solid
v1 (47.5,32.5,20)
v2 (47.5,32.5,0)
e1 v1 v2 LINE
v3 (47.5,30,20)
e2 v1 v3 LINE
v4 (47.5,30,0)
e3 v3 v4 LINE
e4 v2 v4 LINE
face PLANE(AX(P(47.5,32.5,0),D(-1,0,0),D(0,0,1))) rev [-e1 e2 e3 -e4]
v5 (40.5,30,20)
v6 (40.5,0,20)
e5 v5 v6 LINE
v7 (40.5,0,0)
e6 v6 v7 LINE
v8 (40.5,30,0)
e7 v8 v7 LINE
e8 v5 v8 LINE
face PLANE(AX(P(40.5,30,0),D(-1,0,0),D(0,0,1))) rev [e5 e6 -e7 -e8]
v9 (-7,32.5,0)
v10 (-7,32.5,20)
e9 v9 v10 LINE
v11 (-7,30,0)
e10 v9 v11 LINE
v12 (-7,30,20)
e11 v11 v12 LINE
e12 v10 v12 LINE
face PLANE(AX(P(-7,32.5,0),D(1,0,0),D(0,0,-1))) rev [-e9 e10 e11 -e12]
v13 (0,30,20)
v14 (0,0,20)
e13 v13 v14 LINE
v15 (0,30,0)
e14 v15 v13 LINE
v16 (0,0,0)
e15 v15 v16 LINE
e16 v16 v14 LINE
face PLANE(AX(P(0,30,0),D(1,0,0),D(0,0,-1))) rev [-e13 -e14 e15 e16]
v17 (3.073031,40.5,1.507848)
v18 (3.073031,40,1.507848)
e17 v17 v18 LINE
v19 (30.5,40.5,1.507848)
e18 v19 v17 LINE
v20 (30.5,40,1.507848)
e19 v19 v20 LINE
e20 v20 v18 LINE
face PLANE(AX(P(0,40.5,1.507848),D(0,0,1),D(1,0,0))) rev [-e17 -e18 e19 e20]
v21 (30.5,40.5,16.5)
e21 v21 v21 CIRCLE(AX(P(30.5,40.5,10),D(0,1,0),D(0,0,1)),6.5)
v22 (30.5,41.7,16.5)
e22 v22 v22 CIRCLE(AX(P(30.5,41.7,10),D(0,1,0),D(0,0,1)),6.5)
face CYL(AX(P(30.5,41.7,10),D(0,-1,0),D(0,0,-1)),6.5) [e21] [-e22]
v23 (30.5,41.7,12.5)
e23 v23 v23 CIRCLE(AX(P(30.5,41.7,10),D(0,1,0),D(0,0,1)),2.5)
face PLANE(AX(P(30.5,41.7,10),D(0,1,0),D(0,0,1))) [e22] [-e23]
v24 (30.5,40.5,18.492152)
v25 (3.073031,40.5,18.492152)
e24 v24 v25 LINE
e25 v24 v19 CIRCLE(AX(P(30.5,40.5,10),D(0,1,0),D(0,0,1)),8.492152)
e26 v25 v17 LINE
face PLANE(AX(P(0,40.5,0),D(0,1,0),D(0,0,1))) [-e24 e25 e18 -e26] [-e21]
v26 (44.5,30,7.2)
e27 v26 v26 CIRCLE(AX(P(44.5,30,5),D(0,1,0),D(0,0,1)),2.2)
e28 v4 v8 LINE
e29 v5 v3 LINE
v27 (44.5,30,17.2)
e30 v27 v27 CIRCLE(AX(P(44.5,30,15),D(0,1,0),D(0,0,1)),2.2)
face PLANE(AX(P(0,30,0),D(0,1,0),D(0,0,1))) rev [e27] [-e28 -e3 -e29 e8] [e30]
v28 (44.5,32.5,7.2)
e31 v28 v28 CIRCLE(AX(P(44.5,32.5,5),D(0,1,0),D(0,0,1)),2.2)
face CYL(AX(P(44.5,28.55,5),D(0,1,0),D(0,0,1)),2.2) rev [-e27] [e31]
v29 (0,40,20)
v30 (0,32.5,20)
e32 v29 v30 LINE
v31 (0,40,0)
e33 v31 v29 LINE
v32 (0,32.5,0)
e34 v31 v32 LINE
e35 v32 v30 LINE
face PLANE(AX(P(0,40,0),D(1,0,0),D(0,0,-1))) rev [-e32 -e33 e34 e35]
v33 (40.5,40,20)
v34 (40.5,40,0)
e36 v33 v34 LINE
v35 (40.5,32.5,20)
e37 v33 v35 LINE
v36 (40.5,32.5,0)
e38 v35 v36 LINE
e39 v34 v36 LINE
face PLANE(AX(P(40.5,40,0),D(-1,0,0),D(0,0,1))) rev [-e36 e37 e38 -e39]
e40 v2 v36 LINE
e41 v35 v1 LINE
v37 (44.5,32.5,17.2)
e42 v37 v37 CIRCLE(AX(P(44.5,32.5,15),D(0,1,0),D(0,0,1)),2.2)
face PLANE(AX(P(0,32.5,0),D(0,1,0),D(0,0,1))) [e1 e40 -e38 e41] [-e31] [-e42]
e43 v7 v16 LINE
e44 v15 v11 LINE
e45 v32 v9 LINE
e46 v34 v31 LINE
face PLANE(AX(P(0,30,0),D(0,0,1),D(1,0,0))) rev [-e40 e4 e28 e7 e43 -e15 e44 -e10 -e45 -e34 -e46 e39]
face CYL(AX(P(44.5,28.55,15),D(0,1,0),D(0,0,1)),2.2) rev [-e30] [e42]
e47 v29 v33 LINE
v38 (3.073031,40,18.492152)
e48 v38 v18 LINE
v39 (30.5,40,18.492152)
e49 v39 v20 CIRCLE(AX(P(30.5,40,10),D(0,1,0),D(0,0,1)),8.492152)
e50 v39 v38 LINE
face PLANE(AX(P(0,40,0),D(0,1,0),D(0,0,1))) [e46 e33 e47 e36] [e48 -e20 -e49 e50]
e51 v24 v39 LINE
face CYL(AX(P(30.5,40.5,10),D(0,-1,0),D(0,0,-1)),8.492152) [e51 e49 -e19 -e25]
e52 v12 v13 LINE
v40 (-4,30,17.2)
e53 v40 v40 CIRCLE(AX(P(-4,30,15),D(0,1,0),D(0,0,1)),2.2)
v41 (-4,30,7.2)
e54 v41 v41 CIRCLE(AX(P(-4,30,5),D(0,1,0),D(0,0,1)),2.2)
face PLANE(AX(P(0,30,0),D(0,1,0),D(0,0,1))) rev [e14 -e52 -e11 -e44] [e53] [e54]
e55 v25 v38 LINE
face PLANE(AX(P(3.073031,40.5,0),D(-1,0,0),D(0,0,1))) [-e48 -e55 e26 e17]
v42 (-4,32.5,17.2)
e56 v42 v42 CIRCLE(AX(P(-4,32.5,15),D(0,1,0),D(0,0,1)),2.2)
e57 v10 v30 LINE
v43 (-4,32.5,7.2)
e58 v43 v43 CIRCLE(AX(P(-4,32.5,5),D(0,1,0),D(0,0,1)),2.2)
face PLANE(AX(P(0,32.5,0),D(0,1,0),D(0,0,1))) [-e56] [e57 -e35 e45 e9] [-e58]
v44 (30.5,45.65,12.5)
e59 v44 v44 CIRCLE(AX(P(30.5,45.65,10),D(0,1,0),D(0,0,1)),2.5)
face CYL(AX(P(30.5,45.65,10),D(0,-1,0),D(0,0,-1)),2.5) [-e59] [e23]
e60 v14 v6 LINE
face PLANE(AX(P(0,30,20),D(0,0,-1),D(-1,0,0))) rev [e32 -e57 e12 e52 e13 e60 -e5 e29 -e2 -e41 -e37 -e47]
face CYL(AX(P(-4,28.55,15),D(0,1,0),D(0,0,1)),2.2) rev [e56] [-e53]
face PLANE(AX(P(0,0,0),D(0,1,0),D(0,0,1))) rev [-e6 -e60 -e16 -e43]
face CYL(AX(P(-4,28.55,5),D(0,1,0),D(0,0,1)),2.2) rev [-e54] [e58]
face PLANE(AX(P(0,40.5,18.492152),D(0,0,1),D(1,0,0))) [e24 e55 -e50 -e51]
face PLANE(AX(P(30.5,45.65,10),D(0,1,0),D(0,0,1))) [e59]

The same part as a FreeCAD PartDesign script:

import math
import FreeCAD as App
import Part
import Sketcher

doc = App.newDocument("Part")
body = doc.addObject("PartDesign::Body", "Body")

# Sketch on XZ plane
sketch1 = body.newObject("Sketcher::SketchObject", "Sketch")
sketch1.AttachmentSupport = (doc.getObject("XZ_Plane"), [""])
sketch1.MapMode = "FlatFace"
sketch1.addGeometry([
    Part.LineSegment(App.Vector(0, 0, 0), App.Vector(0, 20, 0)),
    Part.LineSegment(App.Vector(0, 20, 0), App.Vector(40, 20, 0)),
    Part.LineSegment(App.Vector(40, 20, 0), App.Vector(40, 0, 0)),
    Part.LineSegment(App.Vector(40, 0, 0), App.Vector(0, 0, 0)),
], False)
sketch1.addConstraint([
    Sketcher.Constraint("Coincident", 0, 2, 1, 1),
    Sketcher.Constraint("Coincident", 1, 2, 2, 1),
    Sketcher.Constraint("Coincident", 2, 2, 3, 1),
    Sketcher.Constraint("Coincident", 3, 2, 0, 1),
    Sketcher.Constraint("Vertical", 0),
    Sketcher.Constraint("Horizontal", 1),
    Sketcher.Constraint("Vertical", 2),
    Sketcher.Constraint("Horizontal", 3),
    Sketcher.Constraint("Coincident", 3, 2, -1, 1),
    Sketcher.Constraint("DistanceY", 0, 1, 0, 2, 20.0),
    Sketcher.Constraint("DistanceX", 1, 1, 1, 2, 40.5),
])
pad1 = body.newObject("PartDesign::Pad", "Pad")
pad1.Profile = sketch1
pad1.Length = 30
pad1.Reversed = True

# Sketch on XZ plane
sketch2 = body.newObject("Sketcher::SketchObject", "Sketch001")
sketch2.AttachmentSupport = (doc.getObject("XZ_Plane"), [""])
sketch2.MapMode = "FlatFace"
sketch2.AttachmentOffset = App.Placement(App.Vector(0, 0, -30), App.Rotation())
sketch2.addGeometry([
    Part.LineSegment(App.Vector(-7, 0, 0), App.Vector(-7, 20, 0)),
    Part.LineSegment(App.Vector(-7, 20, 0), App.Vector(48, 20, 0)),
    Part.LineSegment(App.Vector(48, 20, 0), App.Vector(48, 0, 0)),
    Part.LineSegment(App.Vector(48, 0, 0), App.Vector(-7, 0, 0)),
], False)
sketch2.addConstraint([
    Sketcher.Constraint("Coincident", 0, 2, 1, 1),
    Sketcher.Constraint("Coincident", 1, 2, 2, 1),
    Sketcher.Constraint("Coincident", 2, 2, 3, 1),
    Sketcher.Constraint("Coincident", 3, 2, 0, 1),
    Sketcher.Constraint("Vertical", 0),
    Sketcher.Constraint("Horizontal", 1),
    Sketcher.Constraint("Vertical", 2),
    Sketcher.Constraint("Horizontal", 3),
    Sketcher.Constraint("PointOnObject", 2, 2, -1),
    Sketcher.Constraint("DistanceY", 0, 1, 0, 2, 20.0),
    Sketcher.Constraint("DistanceX", 1, 1, 1, 2, 54.5),
    Sketcher.Constraint("DistanceX", 0, 2, -1, 1, 7.0),
])
pad2 = body.newObject("PartDesign::Pad", "Pad001")
pad2.Profile = sketch2
pad2.Length = 2.5
pad2.Reversed = True

# Sketch on XZ plane
sketch3 = body.newObject("Sketcher::SketchObject", "Sketch002")
sketch3.AttachmentSupport = (doc.getObject("XZ_Plane"), [""])
sketch3.MapMode = "FlatFace"
sketch3.AttachmentOffset = App.Placement(App.Vector(0, 0, -32.5), App.Rotation())
sketch3.addGeometry([
    Part.LineSegment(App.Vector(0, 0, 0), App.Vector(0, 20, 0)),
    Part.LineSegment(App.Vector(0, 20, 0), App.Vector(40, 20, 0)),
    Part.LineSegment(App.Vector(40, 20, 0), App.Vector(40, 0, 0)),
    Part.LineSegment(App.Vector(40, 0, 0), App.Vector(0, 0, 0)),
], False)
sketch3.addConstraint([
    Sketcher.Constraint("Coincident", 0, 2, 1, 1),
    Sketcher.Constraint("Coincident", 1, 2, 2, 1),
    Sketcher.Constraint("Coincident", 2, 2, 3, 1),
    Sketcher.Constraint("Coincident", 3, 2, 0, 1),
    Sketcher.Constraint("Vertical", 0),
    Sketcher.Constraint("Horizontal", 1),
    Sketcher.Constraint("Vertical", 2),
    Sketcher.Constraint("Horizontal", 3),
    Sketcher.Constraint("Coincident", 3, 2, -1, 1),
    Sketcher.Constraint("DistanceY", 0, 1, 0, 2, 20.0),
    Sketcher.Constraint("DistanceX", 1, 1, 1, 2, 40.5),
])
pad3 = body.newObject("PartDesign::Pad", "Pad002")
pad3.Profile = sketch3
pad3.Length = 7.5
pad3.Reversed = True

# Sketch on XZ plane
sketch4 = body.newObject("Sketcher::SketchObject", "Sketch003")
sketch4.AttachmentSupport = (doc.getObject("XZ_Plane"), [""])
sketch4.MapMode = "FlatFace"
sketch4.AttachmentOffset = App.Placement(App.Vector(0, 0, -40), App.Rotation())
sketch4.addGeometry([
    Part.LineSegment(App.Vector(30, 2, 0), App.Vector(3, 2, 0)),  # 0
    Part.LineSegment(App.Vector(3, 2, 0), App.Vector(3, 18, 0)),  # 1
    Part.LineSegment(App.Vector(3, 18, 0), App.Vector(30, 18, 0)),  # 2
    Part.ArcOfCircle(Part.Circle(App.Vector(30, 10, 0), App.Vector(0, 0, 1), 8), math.radians(0), math.radians(90)),  # 3
    Part.ArcOfCircle(Part.Circle(App.Vector(30, 10, 0), App.Vector(0, 0, 1), 8), math.radians(-90), math.radians(0)),  # 4
], False)
sketch4.addConstraint([
    Sketcher.Constraint("Coincident", 0, 2, 1, 1),
    Sketcher.Constraint("Coincident", 1, 2, 2, 1),
    Sketcher.Constraint("Tangent", 2, 2, 3, 2),
    Sketcher.Constraint("Tangent", 3, 1, 4, 2),
    Sketcher.Constraint("Tangent", 4, 1, 0, 1),
    Sketcher.Constraint("Horizontal", 0),
    Sketcher.Constraint("Vertical", 1),
    Sketcher.Constraint("Horizontal", 2),
    Sketcher.Constraint("Equal", 3, 4),
    Sketcher.Constraint("Horizontal", 4, 3, 3, 1),
    Sketcher.Constraint("DistanceY", -1, 1, 3, 3, 10.0),
    Sketcher.Constraint("DistanceX", -1, 1, 3, 3, 30.5),
    Sketcher.Constraint("Radius", 3, 8.492152),
    Sketcher.Constraint("DistanceX", 0, 2, 0, 1, 27.426969),
])
pad4 = body.newObject("PartDesign::Pad", "Pad003")
pad4.Profile = sketch4
pad4.Length = 0.5
pad4.Reversed = True

# Sketch on XZ plane
sketch5 = body.newObject("Sketcher::SketchObject", "Sketch004")
sketch5.AttachmentSupport = (doc.getObject("XZ_Plane"), [""])
sketch5.MapMode = "FlatFace"
sketch5.AttachmentOffset = App.Placement(App.Vector(0, 0, -40.5), App.Rotation())
sketch5.addGeometry(Part.Circle(App.Vector(30, 10, 0), App.Vector(0, 0, 1), 6), False)
sketch5.addConstraint([
    Sketcher.Constraint("Diameter", 0, 13.0),
    Sketcher.Constraint("DistanceY", -1, 1, 0, 3, 10.0),
    Sketcher.Constraint("DistanceX", -1, 1, 0, 3, 30.5),
])
pad5 = body.newObject("PartDesign::Pad", "Pad004")
pad5.Profile = sketch5
pad5.Length = 1.2
pad5.Reversed = True

# Sketch on XZ plane
sketch6 = body.newObject("Sketcher::SketchObject", "Sketch005")
sketch6.AttachmentSupport = (doc.getObject("XZ_Plane"), [""])
sketch6.MapMode = "FlatFace"
sketch6.AttachmentOffset = App.Placement(App.Vector(0, 0, -41.7), App.Rotation())
sketch6.addGeometry(Part.Circle(App.Vector(30.5, 10, 0), App.Vector(0, 0, 1), 2.5), False)
sketch6.addConstraint([
    Sketcher.Constraint("Diameter", 0, 5.0),
    Sketcher.Constraint("DistanceY", -1, 1, 0, 3, 10.0),
    Sketcher.Constraint("DistanceX", -1, 1, 0, 3, 30.5),
])
pad6 = body.newObject("PartDesign::Pad", "Pad005")
pad6.Profile = sketch6
pad6.Length = 3.95
pad6.Reversed = True

# Sketch on XZ plane
sketch7 = body.newObject("Sketcher::SketchObject", "Sketch006")
sketch7.AttachmentSupport = (doc.getObject("XZ_Plane"), [""])
sketch7.MapMode = "FlatFace"
sketch7.AttachmentOffset = App.Placement(App.Vector(0, 0, -32.5), App.Rotation())
sketch7.addGeometry([
    Part.Circle(App.Vector(44.5, 5, 0), App.Vector(0, 0, 1), 2.2),
    Part.Circle(App.Vector(44.5, 15, 0), App.Vector(0, 0, 1), 2.2),
    Part.Circle(App.Vector(-4, 5, 0), App.Vector(0, 0, 1), 2.2),
    Part.Circle(App.Vector(-4, 15, 0), App.Vector(0, 0, 1), 2.2),
], False)
sketch7.addConstraint([
    Sketcher.Constraint("Equal", 0, 1),
    Sketcher.Constraint("Equal", 1, 2),
    Sketcher.Constraint("Equal", 2, 3),
    Sketcher.Constraint("Horizontal", 0, 3, 2, 3),
    Sketcher.Constraint("Horizontal", 1, 3, 3, 3),
    Sketcher.Constraint("Vertical", 0, 3, 1, 3),
    Sketcher.Constraint("Vertical", 2, 3, 3, 3),
    Sketcher.Constraint("Diameter", 0, 4.4),
    Sketcher.Constraint("DistanceY", -1, 1, 0, 3, 5.0),
    Sketcher.Constraint("DistanceY", -1, 1, 1, 3, 15.0),
    Sketcher.Constraint("DistanceX", 2, 3, -1, 1, 4.0),
    Sketcher.Constraint("DistanceX", -1, 1, 0, 3, 44.5),
])
pocket1 = body.newObject("PartDesign::Pocket", "Pocket")
pocket1.Profile = sketch7
pocket1.Length = 3.95
pocket1.Reversed = True

doc.recompute()
